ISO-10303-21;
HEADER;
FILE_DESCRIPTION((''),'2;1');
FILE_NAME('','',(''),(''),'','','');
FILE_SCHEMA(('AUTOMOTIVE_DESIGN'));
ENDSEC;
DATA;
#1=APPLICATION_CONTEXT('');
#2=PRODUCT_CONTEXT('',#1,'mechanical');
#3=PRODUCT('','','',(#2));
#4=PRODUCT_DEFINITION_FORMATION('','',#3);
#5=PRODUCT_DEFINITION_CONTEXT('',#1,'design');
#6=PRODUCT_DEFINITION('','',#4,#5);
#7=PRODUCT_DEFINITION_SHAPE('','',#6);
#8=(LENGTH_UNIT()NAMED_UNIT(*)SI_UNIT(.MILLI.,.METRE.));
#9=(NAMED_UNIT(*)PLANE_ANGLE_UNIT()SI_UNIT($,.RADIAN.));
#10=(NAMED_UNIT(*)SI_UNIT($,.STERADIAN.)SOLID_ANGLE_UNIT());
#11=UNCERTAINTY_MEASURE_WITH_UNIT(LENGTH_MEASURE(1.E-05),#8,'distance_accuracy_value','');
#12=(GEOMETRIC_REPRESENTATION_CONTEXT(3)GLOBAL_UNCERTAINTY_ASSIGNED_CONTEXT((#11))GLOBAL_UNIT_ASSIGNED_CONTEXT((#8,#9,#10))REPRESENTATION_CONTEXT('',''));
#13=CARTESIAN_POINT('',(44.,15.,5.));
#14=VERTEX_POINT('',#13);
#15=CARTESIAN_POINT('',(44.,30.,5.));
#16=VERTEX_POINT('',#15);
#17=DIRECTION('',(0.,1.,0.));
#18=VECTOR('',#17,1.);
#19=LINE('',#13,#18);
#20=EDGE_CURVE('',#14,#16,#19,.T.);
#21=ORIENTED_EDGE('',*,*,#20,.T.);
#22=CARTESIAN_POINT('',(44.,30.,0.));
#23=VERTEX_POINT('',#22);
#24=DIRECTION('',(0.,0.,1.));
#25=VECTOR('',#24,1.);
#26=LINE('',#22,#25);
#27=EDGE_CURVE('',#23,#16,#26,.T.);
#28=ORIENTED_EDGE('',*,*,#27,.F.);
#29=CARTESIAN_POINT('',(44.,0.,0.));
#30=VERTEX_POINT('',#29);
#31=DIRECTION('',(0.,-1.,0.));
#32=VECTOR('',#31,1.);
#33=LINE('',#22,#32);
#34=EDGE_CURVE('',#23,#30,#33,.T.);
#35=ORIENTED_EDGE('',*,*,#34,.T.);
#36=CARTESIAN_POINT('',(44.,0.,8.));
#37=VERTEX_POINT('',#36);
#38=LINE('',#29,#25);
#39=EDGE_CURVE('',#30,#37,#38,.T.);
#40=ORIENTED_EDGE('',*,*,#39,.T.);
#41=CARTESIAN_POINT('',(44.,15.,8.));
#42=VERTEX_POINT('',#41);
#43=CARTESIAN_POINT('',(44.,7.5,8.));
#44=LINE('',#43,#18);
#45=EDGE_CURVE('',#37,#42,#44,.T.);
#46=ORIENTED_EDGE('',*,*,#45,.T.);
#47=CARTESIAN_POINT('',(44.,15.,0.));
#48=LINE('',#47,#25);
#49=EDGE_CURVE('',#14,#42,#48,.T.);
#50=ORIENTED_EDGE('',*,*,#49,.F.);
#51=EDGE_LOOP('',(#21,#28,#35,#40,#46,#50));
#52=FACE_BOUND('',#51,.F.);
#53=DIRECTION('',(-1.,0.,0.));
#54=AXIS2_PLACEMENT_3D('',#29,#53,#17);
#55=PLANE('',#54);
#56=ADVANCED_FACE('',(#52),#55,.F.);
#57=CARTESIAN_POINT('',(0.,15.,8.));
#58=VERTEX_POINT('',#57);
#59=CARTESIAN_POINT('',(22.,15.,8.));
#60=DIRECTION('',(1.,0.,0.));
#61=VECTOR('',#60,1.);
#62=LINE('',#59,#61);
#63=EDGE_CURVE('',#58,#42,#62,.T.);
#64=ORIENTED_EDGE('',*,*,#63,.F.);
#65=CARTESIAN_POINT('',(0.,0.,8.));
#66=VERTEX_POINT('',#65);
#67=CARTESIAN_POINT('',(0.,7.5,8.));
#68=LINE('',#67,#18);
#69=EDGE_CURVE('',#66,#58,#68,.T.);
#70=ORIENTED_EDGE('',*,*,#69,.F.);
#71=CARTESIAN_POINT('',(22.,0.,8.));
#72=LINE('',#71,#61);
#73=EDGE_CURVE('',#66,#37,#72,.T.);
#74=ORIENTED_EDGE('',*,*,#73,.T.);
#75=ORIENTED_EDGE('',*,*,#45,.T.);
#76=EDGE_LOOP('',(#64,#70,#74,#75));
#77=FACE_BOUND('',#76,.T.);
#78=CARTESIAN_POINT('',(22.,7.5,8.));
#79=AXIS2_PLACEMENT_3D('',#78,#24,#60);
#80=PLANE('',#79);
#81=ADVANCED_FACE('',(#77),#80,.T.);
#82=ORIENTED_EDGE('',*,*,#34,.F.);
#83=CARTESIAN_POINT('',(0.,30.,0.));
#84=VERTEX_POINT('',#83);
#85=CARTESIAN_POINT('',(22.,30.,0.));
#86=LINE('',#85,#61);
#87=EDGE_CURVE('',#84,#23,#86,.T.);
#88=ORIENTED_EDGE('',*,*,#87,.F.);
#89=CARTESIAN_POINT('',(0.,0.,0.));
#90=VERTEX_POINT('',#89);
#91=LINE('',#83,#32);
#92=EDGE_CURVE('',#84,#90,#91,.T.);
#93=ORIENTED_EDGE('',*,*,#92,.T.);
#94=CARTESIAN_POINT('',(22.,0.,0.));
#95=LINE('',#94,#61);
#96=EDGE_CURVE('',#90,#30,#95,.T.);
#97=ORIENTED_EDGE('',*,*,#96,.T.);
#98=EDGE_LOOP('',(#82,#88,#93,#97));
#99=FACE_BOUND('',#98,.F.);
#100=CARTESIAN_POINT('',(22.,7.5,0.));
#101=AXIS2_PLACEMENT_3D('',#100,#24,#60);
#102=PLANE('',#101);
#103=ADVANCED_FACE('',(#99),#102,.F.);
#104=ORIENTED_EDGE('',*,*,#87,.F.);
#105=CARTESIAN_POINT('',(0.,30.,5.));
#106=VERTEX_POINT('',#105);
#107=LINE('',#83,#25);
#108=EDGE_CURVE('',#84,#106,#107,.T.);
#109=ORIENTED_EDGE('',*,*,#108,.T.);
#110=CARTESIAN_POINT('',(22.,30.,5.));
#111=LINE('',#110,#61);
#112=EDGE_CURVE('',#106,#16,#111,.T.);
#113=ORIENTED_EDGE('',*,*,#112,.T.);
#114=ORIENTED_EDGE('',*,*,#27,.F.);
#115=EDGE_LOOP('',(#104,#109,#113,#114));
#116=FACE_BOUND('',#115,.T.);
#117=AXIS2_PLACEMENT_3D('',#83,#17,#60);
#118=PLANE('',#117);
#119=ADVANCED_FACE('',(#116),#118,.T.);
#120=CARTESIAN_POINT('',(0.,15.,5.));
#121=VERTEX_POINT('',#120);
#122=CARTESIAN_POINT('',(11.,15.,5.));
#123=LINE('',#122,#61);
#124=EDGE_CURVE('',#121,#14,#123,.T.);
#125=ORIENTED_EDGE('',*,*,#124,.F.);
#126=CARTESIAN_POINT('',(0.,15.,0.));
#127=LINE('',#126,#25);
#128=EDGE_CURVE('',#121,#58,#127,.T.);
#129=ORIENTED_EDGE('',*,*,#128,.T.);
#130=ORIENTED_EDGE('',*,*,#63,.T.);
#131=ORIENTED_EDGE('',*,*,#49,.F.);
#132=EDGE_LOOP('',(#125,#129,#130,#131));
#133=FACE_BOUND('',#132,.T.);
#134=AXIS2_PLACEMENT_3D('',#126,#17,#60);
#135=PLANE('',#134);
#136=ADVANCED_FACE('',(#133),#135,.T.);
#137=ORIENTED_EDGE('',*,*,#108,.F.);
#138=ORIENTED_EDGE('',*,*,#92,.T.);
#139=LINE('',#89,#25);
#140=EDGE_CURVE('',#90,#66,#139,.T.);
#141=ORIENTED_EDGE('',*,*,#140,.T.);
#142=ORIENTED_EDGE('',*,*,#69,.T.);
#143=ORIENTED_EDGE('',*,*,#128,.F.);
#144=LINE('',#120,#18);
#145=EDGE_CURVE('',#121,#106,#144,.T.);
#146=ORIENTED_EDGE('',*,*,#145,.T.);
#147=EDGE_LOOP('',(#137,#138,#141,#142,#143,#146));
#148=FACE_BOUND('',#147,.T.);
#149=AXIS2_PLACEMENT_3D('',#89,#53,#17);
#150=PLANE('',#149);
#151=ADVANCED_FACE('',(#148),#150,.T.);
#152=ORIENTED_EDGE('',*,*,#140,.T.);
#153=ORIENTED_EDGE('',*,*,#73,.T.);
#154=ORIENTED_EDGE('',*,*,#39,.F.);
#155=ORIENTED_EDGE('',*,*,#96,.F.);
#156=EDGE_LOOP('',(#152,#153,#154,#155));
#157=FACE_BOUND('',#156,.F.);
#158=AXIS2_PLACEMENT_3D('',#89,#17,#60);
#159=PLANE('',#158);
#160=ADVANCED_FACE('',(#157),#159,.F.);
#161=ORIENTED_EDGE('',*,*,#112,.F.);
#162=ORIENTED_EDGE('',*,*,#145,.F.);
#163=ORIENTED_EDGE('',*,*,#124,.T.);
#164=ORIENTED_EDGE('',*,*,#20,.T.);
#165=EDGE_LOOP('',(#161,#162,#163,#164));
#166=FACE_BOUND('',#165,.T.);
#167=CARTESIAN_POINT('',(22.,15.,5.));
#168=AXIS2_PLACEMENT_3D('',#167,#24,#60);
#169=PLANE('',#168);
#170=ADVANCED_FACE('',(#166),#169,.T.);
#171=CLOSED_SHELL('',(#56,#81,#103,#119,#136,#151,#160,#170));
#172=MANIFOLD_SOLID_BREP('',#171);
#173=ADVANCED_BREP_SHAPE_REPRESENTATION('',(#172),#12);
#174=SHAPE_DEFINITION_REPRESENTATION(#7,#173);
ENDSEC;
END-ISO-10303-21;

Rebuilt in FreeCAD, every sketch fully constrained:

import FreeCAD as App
import Part
import Sketcher
from FreeCAD import Vector
Q = App.Units.Quantity


def add_polygon(sketch, points):
    """Adds a closed chain of lines whose ends are joined by coincident constraints."""
    first, n = sketch.GeometryCount, len(points)
    for a, b in zip(points, points[1:] + points[:1]):
        sketch.addGeometry(Part.LineSegment(App.Vector(*a, 0), App.Vector(*b, 0)), False)
    for i in range(n):
        sketch.addConstraint(Sketcher.Constraint("Coincident", first + i, 2, first + (i + 1) % n, 1))

doc = App.newDocument("Part")
body = doc.addObject("PartDesign::Body", "Body")

# Sketch on XY plane
sketch1 = doc.addObject("Sketcher::SketchObject", "Sketch")
body.addObject(sketch1)
sketch1.AttachmentSupport = (doc.XY_Plane, [""])
sketch1.MapMode = "FlatFace"
add_polygon(sketch1, [(0, 30), (0, 0), (44, 0), (44, 30)])  # lines 0-3
sketch1.addConstraint(Sketcher.Constraint("Vertical", 0))
sketch1.addConstraint(Sketcher.Constraint("Horizontal", 1))
sketch1.addConstraint(Sketcher.Constraint("Vertical", 2))
sketch1.addConstraint(Sketcher.Constraint("Horizontal", 3))
sketch1.addConstraint(Sketcher.Constraint("Coincident", 0, 2, -1, 1))
sketch1.addConstraint(Sketcher.Constraint("DistanceX", 1, 1, 1, 2, Q("44 mm")))
sketch1.addConstraint(Sketcher.Constraint("DistanceY", 0, 2, 0, 1, Q("30 mm")))
pad1 = doc.addObject("PartDesign::Pad", "Pad")
body.addObject(pad1)
pad1.Profile = sketch1
pad1.Length = 5
body2 = doc.addObject("PartDesign::Body", "Body001")

# Sketch on XY plane
sketch2 = doc.addObject("Sketcher::SketchObject", "Sketch001")
body2.addObject(sketch2)
sketch2.AttachmentSupport = (doc.getObject("XY_Plane001"), [""])
sketch2.MapMode = "FlatFace"
add_polygon(sketch2, [(0, 15), (0, 0), (44, 0), (44, 15)])  # lines 0-3
sketch2.addConstraint(Sketcher.Constraint("Vertical", 0))
sketch2.addConstraint(Sketcher.Constraint("Horizontal", 1))
sketch2.addConstraint(Sketcher.Constraint("Vertical", 2))
sketch2.addConstraint(Sketcher.Constraint("Horizontal", 3))
sketch2.addConstraint(Sketcher.Constraint("Coincident", 0, 2, -1, 1))
sketch2.addConstraint(Sketcher.Constraint("DistanceX", 1, 1, 1, 2, Q("44 mm")))
sketch2.addConstraint(Sketcher.Constraint("DistanceY", 0, 2, 0, 1, Q("15 mm")))
pad2 = doc.addObject("PartDesign::Pad", "Pad001")
body2.addObject(pad2)
pad2.Profile = sketch2
pad2.Length = 8
doc.recompute()

boolean = doc.addObject("PartDesign::Boolean", "Boolean")
body2.addObject(boolean)
boolean.Type = "Fuse"
boolean.addObjects([body])

doc.recompute()
